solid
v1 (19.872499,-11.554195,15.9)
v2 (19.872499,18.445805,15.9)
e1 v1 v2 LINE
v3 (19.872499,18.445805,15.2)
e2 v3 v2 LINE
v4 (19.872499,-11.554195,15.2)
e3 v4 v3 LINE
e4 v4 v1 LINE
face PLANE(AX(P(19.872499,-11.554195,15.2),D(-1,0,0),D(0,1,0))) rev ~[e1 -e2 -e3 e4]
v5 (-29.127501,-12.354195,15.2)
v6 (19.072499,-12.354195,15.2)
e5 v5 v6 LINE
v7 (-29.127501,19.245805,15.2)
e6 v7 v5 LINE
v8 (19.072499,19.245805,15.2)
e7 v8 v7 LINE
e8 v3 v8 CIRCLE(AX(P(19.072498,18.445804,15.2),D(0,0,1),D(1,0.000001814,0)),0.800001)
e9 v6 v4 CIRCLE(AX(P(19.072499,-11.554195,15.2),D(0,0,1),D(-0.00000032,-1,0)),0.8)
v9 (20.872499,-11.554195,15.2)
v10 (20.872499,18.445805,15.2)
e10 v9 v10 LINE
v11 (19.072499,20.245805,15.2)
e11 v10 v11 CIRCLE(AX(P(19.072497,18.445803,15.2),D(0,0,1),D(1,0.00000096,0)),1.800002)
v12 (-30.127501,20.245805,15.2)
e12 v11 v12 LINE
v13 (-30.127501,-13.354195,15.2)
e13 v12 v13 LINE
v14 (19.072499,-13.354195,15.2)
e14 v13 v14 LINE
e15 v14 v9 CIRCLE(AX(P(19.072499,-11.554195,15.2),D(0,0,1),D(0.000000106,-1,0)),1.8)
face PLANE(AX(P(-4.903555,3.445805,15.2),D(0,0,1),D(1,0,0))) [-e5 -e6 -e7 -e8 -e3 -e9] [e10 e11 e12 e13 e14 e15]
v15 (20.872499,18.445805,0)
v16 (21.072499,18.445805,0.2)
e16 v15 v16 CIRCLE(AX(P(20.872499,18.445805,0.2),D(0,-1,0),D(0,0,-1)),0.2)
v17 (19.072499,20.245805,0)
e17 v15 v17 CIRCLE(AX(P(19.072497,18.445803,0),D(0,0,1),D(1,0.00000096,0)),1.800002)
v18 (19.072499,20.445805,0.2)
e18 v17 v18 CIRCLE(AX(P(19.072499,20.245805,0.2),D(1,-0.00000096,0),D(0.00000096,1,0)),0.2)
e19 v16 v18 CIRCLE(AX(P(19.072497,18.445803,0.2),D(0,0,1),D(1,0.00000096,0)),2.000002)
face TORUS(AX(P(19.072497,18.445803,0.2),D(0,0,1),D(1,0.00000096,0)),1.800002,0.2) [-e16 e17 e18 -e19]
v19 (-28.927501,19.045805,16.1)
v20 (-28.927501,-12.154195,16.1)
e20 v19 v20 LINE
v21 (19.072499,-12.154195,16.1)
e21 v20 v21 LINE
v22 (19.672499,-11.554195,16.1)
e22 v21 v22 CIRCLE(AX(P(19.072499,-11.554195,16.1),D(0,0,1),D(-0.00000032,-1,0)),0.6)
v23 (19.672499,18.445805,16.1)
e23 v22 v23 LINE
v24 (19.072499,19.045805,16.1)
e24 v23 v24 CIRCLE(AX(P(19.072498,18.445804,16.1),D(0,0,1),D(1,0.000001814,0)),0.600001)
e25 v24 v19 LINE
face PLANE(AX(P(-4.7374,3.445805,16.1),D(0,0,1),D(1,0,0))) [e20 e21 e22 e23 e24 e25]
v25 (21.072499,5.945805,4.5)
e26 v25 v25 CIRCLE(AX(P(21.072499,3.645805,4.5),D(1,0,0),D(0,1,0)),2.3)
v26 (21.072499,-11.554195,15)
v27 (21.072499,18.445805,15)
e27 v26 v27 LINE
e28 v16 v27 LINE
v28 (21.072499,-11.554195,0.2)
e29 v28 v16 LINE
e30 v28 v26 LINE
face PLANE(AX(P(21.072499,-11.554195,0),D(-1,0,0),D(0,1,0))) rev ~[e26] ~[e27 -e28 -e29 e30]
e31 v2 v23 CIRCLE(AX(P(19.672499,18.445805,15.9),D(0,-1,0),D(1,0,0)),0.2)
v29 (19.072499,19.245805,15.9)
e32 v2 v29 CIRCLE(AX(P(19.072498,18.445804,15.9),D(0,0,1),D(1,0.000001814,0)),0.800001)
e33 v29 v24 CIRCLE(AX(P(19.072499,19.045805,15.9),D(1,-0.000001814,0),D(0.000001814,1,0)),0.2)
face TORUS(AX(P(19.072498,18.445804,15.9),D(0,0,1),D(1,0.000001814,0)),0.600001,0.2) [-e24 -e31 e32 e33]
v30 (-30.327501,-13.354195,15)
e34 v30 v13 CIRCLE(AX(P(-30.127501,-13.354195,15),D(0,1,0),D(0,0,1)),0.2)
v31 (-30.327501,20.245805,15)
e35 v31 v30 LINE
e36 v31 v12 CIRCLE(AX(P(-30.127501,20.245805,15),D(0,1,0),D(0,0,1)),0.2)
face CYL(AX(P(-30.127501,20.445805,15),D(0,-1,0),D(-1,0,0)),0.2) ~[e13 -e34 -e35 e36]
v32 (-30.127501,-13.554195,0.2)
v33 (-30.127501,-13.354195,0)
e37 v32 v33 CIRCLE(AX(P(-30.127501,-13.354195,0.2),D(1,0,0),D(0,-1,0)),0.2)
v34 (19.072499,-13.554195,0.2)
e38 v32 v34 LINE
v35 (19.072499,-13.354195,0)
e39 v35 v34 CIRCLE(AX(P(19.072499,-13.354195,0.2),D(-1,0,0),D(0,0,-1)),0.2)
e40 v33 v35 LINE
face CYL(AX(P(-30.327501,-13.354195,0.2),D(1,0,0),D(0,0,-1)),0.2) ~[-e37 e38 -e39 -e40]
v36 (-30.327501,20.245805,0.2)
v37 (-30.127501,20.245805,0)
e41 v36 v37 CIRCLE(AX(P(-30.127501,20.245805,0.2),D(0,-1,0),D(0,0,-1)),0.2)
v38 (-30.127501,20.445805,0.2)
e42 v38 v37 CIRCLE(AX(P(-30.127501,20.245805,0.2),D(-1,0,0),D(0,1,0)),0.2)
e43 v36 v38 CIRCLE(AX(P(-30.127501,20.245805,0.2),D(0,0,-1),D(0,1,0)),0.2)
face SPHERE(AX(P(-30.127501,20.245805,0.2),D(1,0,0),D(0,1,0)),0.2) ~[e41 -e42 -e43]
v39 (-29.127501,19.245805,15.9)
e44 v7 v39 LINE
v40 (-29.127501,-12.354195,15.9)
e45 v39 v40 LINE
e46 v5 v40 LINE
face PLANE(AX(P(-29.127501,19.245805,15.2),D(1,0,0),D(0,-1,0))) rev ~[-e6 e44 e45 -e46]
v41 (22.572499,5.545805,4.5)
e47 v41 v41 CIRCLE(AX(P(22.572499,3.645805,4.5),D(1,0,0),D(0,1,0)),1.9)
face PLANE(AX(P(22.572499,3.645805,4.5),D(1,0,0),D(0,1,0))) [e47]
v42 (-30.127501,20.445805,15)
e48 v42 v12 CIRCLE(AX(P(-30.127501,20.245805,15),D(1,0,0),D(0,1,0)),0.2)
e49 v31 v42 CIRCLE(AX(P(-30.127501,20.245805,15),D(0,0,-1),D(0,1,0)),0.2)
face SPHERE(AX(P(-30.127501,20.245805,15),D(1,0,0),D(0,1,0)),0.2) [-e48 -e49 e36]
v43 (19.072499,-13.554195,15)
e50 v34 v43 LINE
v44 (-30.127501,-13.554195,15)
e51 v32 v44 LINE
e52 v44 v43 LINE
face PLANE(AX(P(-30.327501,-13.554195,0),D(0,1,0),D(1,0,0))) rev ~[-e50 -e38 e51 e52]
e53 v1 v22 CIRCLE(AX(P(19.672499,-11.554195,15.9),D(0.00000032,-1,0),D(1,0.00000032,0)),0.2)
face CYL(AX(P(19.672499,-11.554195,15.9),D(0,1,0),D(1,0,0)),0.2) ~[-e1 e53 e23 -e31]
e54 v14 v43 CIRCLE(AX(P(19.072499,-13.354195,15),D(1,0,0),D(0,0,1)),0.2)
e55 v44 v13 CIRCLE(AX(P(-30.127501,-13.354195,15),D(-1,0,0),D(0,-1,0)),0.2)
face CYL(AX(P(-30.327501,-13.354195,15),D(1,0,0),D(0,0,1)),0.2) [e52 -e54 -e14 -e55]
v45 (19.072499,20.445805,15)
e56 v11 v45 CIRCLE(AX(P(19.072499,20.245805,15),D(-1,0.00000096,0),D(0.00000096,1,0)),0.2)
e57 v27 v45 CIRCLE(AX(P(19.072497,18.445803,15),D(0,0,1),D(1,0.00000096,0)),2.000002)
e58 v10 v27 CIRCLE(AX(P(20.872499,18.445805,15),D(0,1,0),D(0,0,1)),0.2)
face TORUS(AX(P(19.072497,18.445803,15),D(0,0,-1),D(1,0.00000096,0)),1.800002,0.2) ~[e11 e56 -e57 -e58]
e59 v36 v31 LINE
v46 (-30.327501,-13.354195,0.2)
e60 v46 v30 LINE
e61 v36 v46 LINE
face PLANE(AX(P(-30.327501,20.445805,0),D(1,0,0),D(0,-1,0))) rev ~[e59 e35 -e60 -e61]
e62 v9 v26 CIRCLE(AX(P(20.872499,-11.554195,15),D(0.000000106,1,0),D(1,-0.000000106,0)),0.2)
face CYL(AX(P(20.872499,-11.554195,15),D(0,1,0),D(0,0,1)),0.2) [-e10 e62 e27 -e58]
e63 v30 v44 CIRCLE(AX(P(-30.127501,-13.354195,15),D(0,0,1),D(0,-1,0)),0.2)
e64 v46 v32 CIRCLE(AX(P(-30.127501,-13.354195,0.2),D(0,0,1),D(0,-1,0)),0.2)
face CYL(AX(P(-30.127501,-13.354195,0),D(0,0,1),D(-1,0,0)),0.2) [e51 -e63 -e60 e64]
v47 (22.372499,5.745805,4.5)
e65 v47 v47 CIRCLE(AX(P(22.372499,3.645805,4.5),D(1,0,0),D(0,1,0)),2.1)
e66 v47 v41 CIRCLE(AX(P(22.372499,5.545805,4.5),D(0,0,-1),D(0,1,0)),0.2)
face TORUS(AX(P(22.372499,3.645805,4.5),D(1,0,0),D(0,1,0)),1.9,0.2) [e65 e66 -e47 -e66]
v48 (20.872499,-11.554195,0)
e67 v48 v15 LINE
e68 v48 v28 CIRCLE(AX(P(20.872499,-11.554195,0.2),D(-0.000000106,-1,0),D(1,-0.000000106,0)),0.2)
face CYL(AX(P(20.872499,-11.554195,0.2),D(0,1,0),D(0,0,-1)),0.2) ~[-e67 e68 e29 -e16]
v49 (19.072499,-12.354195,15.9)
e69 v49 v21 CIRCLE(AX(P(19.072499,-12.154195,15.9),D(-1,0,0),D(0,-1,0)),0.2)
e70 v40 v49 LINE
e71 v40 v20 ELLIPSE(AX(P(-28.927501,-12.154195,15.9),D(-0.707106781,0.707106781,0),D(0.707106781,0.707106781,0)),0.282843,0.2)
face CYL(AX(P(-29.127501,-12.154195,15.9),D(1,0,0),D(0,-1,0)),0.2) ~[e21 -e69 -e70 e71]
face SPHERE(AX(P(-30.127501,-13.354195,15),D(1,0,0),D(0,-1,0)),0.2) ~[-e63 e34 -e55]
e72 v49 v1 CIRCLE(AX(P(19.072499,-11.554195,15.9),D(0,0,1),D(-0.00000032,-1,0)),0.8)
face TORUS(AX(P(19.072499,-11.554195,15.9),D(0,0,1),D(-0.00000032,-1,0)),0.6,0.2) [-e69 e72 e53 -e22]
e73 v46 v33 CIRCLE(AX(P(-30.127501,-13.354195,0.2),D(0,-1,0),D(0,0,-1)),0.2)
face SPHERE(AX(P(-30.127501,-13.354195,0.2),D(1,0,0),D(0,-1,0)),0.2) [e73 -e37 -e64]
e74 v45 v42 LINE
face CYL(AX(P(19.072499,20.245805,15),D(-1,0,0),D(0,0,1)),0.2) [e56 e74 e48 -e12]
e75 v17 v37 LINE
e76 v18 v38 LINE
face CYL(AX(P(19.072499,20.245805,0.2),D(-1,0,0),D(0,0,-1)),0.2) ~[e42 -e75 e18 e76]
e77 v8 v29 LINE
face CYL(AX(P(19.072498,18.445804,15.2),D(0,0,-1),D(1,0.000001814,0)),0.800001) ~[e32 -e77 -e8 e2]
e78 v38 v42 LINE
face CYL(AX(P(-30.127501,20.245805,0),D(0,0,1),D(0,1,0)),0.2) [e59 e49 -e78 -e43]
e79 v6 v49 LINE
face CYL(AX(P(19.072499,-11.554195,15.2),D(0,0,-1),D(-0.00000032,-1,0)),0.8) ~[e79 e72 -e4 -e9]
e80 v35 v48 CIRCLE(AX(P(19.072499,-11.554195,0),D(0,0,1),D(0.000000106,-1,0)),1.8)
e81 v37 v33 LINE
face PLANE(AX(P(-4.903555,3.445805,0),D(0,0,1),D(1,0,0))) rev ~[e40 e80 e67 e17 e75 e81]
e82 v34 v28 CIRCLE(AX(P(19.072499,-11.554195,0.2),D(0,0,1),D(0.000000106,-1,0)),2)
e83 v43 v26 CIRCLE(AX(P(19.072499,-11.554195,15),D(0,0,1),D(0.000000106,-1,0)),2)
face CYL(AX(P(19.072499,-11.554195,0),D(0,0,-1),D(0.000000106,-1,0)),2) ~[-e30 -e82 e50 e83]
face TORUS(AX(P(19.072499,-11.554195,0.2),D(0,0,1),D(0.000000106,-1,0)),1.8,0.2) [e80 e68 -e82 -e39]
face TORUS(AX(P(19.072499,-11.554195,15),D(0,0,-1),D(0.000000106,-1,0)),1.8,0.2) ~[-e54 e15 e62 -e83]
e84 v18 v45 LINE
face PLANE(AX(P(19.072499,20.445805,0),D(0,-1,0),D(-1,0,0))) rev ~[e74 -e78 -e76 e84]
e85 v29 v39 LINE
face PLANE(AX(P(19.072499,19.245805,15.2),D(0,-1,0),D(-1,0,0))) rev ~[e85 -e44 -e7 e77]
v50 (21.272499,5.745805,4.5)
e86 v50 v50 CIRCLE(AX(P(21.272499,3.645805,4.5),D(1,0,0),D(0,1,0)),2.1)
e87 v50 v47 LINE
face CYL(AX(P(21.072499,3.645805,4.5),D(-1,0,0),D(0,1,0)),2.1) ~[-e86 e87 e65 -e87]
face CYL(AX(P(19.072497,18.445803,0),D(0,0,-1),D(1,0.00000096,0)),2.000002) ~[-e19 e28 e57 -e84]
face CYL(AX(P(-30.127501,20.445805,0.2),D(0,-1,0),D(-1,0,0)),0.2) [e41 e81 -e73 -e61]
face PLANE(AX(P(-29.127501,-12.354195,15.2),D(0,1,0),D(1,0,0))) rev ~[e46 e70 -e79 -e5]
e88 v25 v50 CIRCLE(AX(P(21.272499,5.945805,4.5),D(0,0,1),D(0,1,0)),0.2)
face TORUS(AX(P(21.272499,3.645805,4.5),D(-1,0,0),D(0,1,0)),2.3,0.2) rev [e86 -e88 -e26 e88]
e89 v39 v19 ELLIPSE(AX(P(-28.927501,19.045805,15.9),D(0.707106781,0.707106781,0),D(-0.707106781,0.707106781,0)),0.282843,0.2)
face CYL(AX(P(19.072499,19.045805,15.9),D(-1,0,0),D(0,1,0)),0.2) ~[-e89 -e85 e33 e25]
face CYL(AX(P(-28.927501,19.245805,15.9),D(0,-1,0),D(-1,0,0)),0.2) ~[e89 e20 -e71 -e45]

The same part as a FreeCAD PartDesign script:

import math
import FreeCAD as App
import Part
import Sketcher
from FreeCAD import Vector


def edges_at(feature, points):
    """Names of the edges that pass closest to the given points."""
    edges = feature.Shape.Edges
    near = lambda p: min(range(len(edges)), key=lambda i: edges[i].distToShape(Part.Vertex(*p))[0])
    return sorted({f"Edge{near(p) + 1}" for p in points})

doc = App.newDocument("Part")
body = doc.addObject("PartDesign::Body", "Body")

# Sketch on XY plane
sketch1 = doc.addObject("Sketcher::SketchObject", "Sketch")
body.addObject(sketch1)
sketch1.AttachmentSupport = (doc.XY_Plane, [""])
sketch1.MapMode = "FlatFace"
sketch1.addGeometry(Part.LineSegment(Vector(19.1, 20.4, 0), Vector(-30.3, 20.4, 0)), False)
sketch1.addGeometry(Part.LineSegment(Vector(-30.3, 20.4, 0), Vector(-30.3, -13.6, 0)), False)
sketch1.addGeometry(Part.LineSegment(Vector(-30.3, -13.6, 0), Vector(19.1, -13.6, 0)), False)
sketch1.addGeometry(Part.ArcOfCircle(Part.Circle(Vector(19.1, -11.6, 0), Vector(0, 0, 1), 2), math.radians(-90), math.radians(0)), False)
sketch1.addGeometry(Part.LineSegment(Vector(21.1, -11.6, 0), Vector(21.1, 18.4, 0)), False)
sketch1.addGeometry(Part.ArcOfCircle(Part.Circle(Vector(19.1, 18.4, 0), Vector(0, 0, 1), 2), math.radians(0), math.radians(90)), False)
sketch1.addConstraint(Sketcher.Constraint("Coincident", 0, 2, 1, 1))
sketch1.addConstraint(Sketcher.Constraint("Coincident", 1, 2, 2, 1))
sketch1.addConstraint(Sketcher.Constraint("Tangent", 2, 2, 3, 1))
sketch1.addConstraint(Sketcher.Constraint("Tangent", 3, 2, 4, 1))
sketch1.addConstraint(Sketcher.Constraint("Tangent", 4, 2, 5, 1))
sketch1.addConstraint(Sketcher.Constraint("Tangent", 5, 2, 0, 1))
sketch1.addConstraint(Sketcher.Constraint("Horizontal", 0))
sketch1.addConstraint(Sketcher.Constraint("Vertical", 1))
sketch1.addConstraint(Sketcher.Constraint("Horizontal", 2))
sketch1.addConstraint(Sketcher.Constraint("Vertical", 4))
sketch1.addConstraint(Sketcher.Constraint("Equal", 3, 5))
sketch1.addConstraint(Sketcher.Constraint("Radius", 3, 2.0))
sketch1.addConstraint(Sketcher.Constraint("DistanceY", 1, 2, 1, 1, 34.0))
sketch1.addConstraint(Sketcher.Constraint("DistanceX", 0, 2, 0, 1, 49.4))
sketch1.addConstraint(Sketcher.Constraint("DistanceX", -1, 1, 3, 3, 19.072499))
sketch1.addConstraint(Sketcher.Constraint("DistanceY", 3, 3, -1, 1, 11.554195))
pad1 = doc.addObject("PartDesign::Pad", "Pad")
body.addObject(pad1)
pad1.Profile = sketch1
pad1.Length = 15.2

# Sketch on YZ plane
sketch2 = doc.addObject("Sketcher::SketchObject", "Sketch001")
body.addObject(sketch2)
sketch2.AttachmentSupport = (doc.YZ_Plane, [""])
sketch2.MapMode = "FlatFace"
sketch2.AttachmentOffset = App.Placement(Vector(0, 0, 21.072499), App.Rotation())
sketch2.addGeometry(Part.Circle(Vector(3.6, 4.5, 0), Vector(0, 0, 1), 2.1), False)
sketch2.addConstraint(Sketcher.Constraint("Diameter", 0, 4.2))
sketch2.addConstraint(Sketcher.Constraint("DistanceY", -1, 1, 0, 3, 4.5))
sketch2.addConstraint(Sketcher.Constraint("DistanceX", -1, 1, 0, 3, 3.645805))
pad2 = doc.addObject("PartDesign::Pad", "Pad001")
body.addObject(pad2)
pad2.Profile = sketch2
pad2.Length = 1.5
doc.recompute()

fillet = doc.addObject("PartDesign::Fillet", "Fillet")
body.addObject(fillet)
fillet.Base = (pad2, edges_at(pad2, [
    (21.072, 3.446, 15.2),
    (21.072, 3.446, 0),
    (22.572, 1.546, 4.5),
    (21.072, 1.546, 4.5),
    (-30.328, 20.446, 7.6),
    (-30.328, -13.554, 7.6),
    (-30.328, 3.446, 15.2),
    (-30.328, 3.446, 0),
]))
fillet.Radius = 0.2

# Sketch on XY plane
sketch3 = doc.addObject("Sketcher::SketchObject", "Sketch002")
body.addObject(sketch3)
sketch3.AttachmentSupport = (doc.XY_Plane, [""])
sketch3.MapMode = "FlatFace"
sketch3.AttachmentOffset = App.Placement(Vector(0, 0, 15.2), App.Rotation())
sketch3.addGeometry(Part.LineSegment(Vector(-29.1, 19.2, 0), Vector(-29.1, -12.4, 0)), False)
sketch3.addGeometry(Part.LineSegment(Vector(-29.1, -12.4, 0), Vector(19.1, -12.4, 0)), False)
sketch3.addGeometry(Part.ArcOfCircle(Part.Circle(Vector(19.1, -11.6, 0), Vector(0, 0, 1), 0.8), math.radians(-90), math.radians(0)), False)
sketch3.addGeometry(Part.LineSegment(Vector(19.9, -11.6, 0), Vector(19.9, 18.4, 0)), False)
sketch3.addGeometry(Part.ArcOfCircle(Part.Circle(Vector(19.1, 18.4, 0), Vector(0, 0, 1), 0.8), math.radians(0), math.radians(90)), False)
sketch3.addGeometry(Part.LineSegment(Vector(19.1, 19.2, 0), Vector(-29.1, 19.2, 0)), False)
sketch3.addConstraint(Sketcher.Constraint("Coincident", 0, 2, 1, 1))
sketch3.addConstraint(Sketcher.Constraint("Tangent", 1, 2, 2, 1))
sketch3.addConstraint(Sketcher.Constraint("Tangent", 2, 2, 3, 1))
sketch3.addConstraint(Sketcher.Constraint("Tangent", 3, 2, 4, 1))
sketch3.addConstraint(Sketcher.Constraint("Tangent", 4, 2, 5, 1))
sketch3.addConstraint(Sketcher.Constraint("Coincident", 5, 2, 0, 1))
sketch3.addConstraint(Sketcher.Constraint("Vertical", 0))
sketch3.addConstraint(Sketcher.Constraint("Horizontal", 1))
sketch3.addConstraint(Sketcher.Constraint("Vertical", 3))
sketch3.addConstraint(Sketcher.Constraint("Horizontal", 5))
sketch3.addConstraint(Sketcher.Constraint("Equal", 2, 4))
sketch3.addConstraint(Sketcher.Constraint("Radius", 2, 0.8))
sketch3.addConstraint(Sketcher.Constraint("DistanceY", 3, 1, 3, 2, 30.0))
sketch3.addConstraint(Sketcher.Constraint("DistanceX", 1, 1, 1, 2, 48.2))
sketch3.addConstraint(Sketcher.Constraint("DistanceX", -1, 1, 2, 3, 19.072499))
sketch3.addConstraint(Sketcher.Constraint("DistanceY", 2, 3, -1, 1, 11.554195))
pad3 = doc.addObject("PartDesign::Pad", "Pad002")
body.addObject(pad3)
pad3.Profile = sketch3
pad3.Length = 0.9
doc.recompute()

fillet2 = doc.addObject("PartDesign::Fillet", "Fillet001")
body.addObject(fillet2)
fillet2.Base = (pad3, edges_at(pad3, [
    (-5.028, -12.354, 16.1),
    (19.638, -12.12, 16.1),
    (19.872, 3.446, 16.1),
    (19.638, 19.011, 16.1),
    (-5.028, 19.246, 16.1),
    (-29.128, 3.446, 16.1),
]))
fillet2.Radius = 0.2

doc.recompute()
